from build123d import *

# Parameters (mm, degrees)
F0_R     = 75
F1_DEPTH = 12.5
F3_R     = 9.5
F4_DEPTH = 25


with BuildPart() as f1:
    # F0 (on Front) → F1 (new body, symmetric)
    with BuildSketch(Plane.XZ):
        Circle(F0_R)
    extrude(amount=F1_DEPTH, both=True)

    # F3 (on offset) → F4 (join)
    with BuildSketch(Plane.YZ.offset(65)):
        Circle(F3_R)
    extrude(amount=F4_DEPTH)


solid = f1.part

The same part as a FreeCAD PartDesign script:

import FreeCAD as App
import Part
import Sketcher
from FreeCAD import Vector

doc = App.newDocument("Part")
body = doc.addObject("PartDesign::Body", "Body")

# Sketch on XZ plane
sketch1 = body.newObject("Sketcher::SketchObject", "Sketch")
sketch1.AttachmentSupport = (doc.getObject("XZ_Plane"), [""])
sketch1.MapMode = "FlatFace"
sketch1.addGeometry(Part.Circle(Vector(0, 0, 0), Vector(0, 0, 1), 75), False)
sketch1.addConstraint(Sketcher.Constraint("Coincident", 0, 3, -1, 1))
sketch1.addConstraint(Sketcher.Constraint("Diameter", 0, 150.0))
pad1 = body.newObject("PartDesign::Pad", "Pad")
pad1.Profile = sketch1
pad1.Length = 25
pad1.Midplane = True

# Sketch on YZ plane
sketch2 = body.newObject("Sketcher::SketchObject", "Sketch001")
sketch2.AttachmentSupport = (doc.getObject("YZ_Plane"), [""])
sketch2.MapMode = "FlatFace"
sketch2.AttachmentOffset = App.Placement(Vector(0, 0, 65), App.Rotation())
sketch2.addGeometry(Part.Circle(Vector(0, 0, 0), Vector(0, 0, 1), 10), False)
sketch2.addConstraint(Sketcher.Constraint("Coincident", 0, 3, -1, 1))
sketch2.addConstraint(Sketcher.Constraint("Diameter", 0, 19.0))
pad2 = body.newObject("PartDesign::Pad", "Pad001")
pad2.Profile = sketch2
pad2.Length = 25

doc.recompute()
